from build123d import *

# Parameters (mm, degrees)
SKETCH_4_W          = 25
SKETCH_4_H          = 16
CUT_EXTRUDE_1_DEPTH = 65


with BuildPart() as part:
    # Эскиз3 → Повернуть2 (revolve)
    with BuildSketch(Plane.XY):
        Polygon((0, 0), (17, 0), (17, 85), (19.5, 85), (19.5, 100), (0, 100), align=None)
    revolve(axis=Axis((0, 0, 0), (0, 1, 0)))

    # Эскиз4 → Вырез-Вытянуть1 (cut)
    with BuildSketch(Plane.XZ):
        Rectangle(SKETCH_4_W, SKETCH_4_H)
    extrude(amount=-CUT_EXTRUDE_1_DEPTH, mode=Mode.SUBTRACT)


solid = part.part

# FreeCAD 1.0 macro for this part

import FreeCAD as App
import Part
import Sketcher
from FreeCAD import Vector


def add_polygon(sketch, points):
    """Adds a closed chain of lines whose ends are joined by coincident constraints."""
    first, n = sketch.GeometryCount, len(points)
    for a, b in zip(points, points[1:] + points[:1]):
        sketch.addGeometry(Part.LineSegment(App.Vector(*a, 0), App.Vector(*b, 0)), False)
    for i in range(n):
        sketch.addConstraint(Sketcher.Constraint("Coincident", first + i, 2, first + (i + 1) % n, 1))

doc = App.newDocument("Part")
body = doc.addObject("PartDesign::Body", "Body")

sketch1 = doc.addObject("Sketcher::SketchObject", "Sketch")
body.addObject(sketch1)
sketch1.AttachmentSupport = (doc.XY_Plane, [""])
sketch1.MapMode = "FlatFace"
add_polygon(sketch1, [(0, 0), (17, 0), (17, 85), (19.5, 85), (19.5, 100), (0, 100)])
sketch1.addConstraint(Sketcher.Constraint("Horizontal", 0))
sketch1.addConstraint(Sketcher.Constraint("Vertical", 1))
sketch1.addConstraint(Sketcher.Constraint("Horizontal", 2))
sketch1.addConstraint(Sketcher.Constraint("Vertical", 3))
sketch1.addConstraint(Sketcher.Constraint("Horizontal", 4))
sketch1.addConstraint(Sketcher.Constraint("Vertical", 5))
sketch1.addConstraint(Sketcher.Constraint("Coincident", 5, 2, -1, 1))
sketch1.addConstraint(Sketcher.Constraint("DistanceX", 0, 1, 0, 2, 17.0))
sketch1.addConstraint(Sketcher.Constraint("DistanceY", 1, 1, 1, 2, 85.0))
sketch1.addConstraint(Sketcher.Constraint("DistanceY", 3, 1, 3, 2, 15.0))
sketch1.addConstraint(Sketcher.Constraint("DistanceX", 2, 1, 2, 2, 2.5))
revolution = doc.addObject("PartDesign::Revolution", "Revolution")
body.addObject(revolution)
revolution.Profile = sketch1
revolution.ReferenceAxis = (sketch1, ["V_Axis"])
revolution.Angle = 360

sketch2 = doc.addObject("Sketcher::SketchObject", "Sketch001")
body.addObject(sketch2)
sketch2.AttachmentSupport = (doc.XZ_Plane, [""])
sketch2.MapMode = "FlatFace"
add_polygon(sketch2, [(-12, 8), (-12, -8), (12, -8), (12, 8)])
sketch2.addConstraint(Sketcher.Constraint("Vertical", 0))
sketch2.addConstraint(Sketcher.Constraint("Horizontal", 1))
sketch2.addConstraint(Sketcher.Constraint("Vertical", 2))
sketch2.addConstraint(Sketcher.Constraint("Horizontal", 3))
sketch2.addConstraint(Sketcher.Constraint("Symmetric", 0, 2, 2, 2, -1, 1))
sketch2.addConstraint(Sketcher.Constraint("DistanceX", 1, 1, 1, 2, 25.0))
sketch2.addConstraint(Sketcher.Constraint("DistanceY", 0, 2, 0, 1, 16.0))
pocket1 = doc.addObject("PartDesign::Pocket", "Pocket")
body.addObject(pocket1)
pocket1.Profile = sketch2
pocket1.Length = 65

doc.recompute()
